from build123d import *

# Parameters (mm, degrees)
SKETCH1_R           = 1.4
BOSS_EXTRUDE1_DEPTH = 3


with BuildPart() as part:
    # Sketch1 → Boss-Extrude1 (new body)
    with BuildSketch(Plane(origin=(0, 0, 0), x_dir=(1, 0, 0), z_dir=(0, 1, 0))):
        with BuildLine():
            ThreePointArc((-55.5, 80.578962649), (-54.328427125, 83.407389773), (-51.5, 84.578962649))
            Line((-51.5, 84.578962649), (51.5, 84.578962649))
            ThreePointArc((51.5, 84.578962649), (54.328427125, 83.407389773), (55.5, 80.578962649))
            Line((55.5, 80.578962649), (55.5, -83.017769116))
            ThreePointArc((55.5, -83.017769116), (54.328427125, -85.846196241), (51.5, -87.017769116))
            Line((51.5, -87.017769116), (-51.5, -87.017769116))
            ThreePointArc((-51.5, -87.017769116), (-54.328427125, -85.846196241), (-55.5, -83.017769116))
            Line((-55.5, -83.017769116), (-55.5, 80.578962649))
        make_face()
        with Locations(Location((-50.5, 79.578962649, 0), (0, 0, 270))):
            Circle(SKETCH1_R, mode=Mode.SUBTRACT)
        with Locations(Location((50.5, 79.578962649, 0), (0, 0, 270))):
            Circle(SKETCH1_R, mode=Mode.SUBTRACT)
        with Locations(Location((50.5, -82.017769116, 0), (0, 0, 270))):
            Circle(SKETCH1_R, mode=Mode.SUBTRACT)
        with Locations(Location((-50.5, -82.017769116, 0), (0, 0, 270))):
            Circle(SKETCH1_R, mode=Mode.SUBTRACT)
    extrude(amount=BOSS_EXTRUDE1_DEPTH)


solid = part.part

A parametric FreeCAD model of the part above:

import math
import FreeCAD as App
import Part
import Sketcher

V = App.Vector
Q = App.Units.Quantity

doc = App.newDocument("Part")
body = doc.addObject("PartDesign::Body", "Body")

sketch1 = body.newObject("Sketcher::SketchObject", "Sketch")
sketch1.AttachmentSupport = (doc.getObject("XZ_Plane"), [""])
sketch1.MapMode = "FlatFace"
sketch1.addGeometry(Part.ArcOfCircle(Part.Circle(V(-51.5, -80.6, 0), V(0, 0, 1), 4), math.radians(-180), math.radians(-90)), False)
sketch1.addGeometry(Part.LineSegment(V(-55.5, -80.6, 0), V(-55.5, 83, 0)), False)
sketch1.addGeometry(Part.ArcOfCircle(Part.Circle(V(-51.5, 83, 0), V(0, 0, 1), 4), math.radians(90), math.radians(180)), False)
sketch1.addGeometry(Part.LineSegment(V(-51.5, 87, 0), V(51.5, 87, 0)), False)
sketch1.addGeometry(Part.ArcOfCircle(Part.Circle(V(51.5, 83, 0), V(0, 0, 1), 4), math.radians(0), math.radians(90)), False)
sketch1.addGeometry(Part.LineSegment(V(55.5, 83, 0), V(55.5, -80.6, 0)), False)
sketch1.addGeometry(Part.ArcOfCircle(Part.Circle(V(51.5, -80.6, 0), V(0, 0, 1), 4), math.radians(-90), math.radians(0)), False)
sketch1.addGeometry(Part.LineSegment(V(51.5, -84.6, 0), V(-51.5, -84.6, 0)), False)
sketch1.addGeometry(Part.Circle(V(50.5, 82, 0), V(0, 0, 1), 1.4), False)
sketch1.addGeometry(Part.Circle(V(-50.5, 82, 0), V(0, 0, 1), 1.4), False)
sketch1.addGeometry(Part.Circle(V(50.5, -79.6, 0), V(0, 0, 1), 1.4), False)
sketch1.addGeometry(Part.Circle(V(-50.5, -79.6, 0), V(0, 0, 1), 1.4), False)
sketch1.addConstraint(Sketcher.Constraint("Tangent", 0, 1, 1, 1))
sketch1.addConstraint(Sketcher.Constraint("Tangent", 1, 2, 2, 2))
sketch1.addConstraint(Sketcher.Constraint("Tangent", 2, 1, 3, 1))
sketch1.addConstraint(Sketcher.Constraint("Tangent", 3, 2, 4, 2))
sketch1.addConstraint(Sketcher.Constraint("Tangent", 4, 1, 5, 1))
sketch1.addConstraint(Sketcher.Constraint("Tangent", 5, 2, 6, 2))
sketch1.addConstraint(Sketcher.Constraint("Tangent", 6, 1, 7, 1))
sketch1.addConstraint(Sketcher.Constraint("Tangent", 7, 2, 0, 2))
sketch1.addConstraint(Sketcher.Constraint("Vertical", 1))
sketch1.addConstraint(Sketcher.Constraint("Horizontal", 3))
sketch1.addConstraint(Sketcher.Constraint("Vertical", 5))
sketch1.addConstraint(Sketcher.Constraint("Horizontal", 7))
sketch1.addConstraint(Sketcher.Constraint("Equal", 0, 2))
sketch1.addConstraint(Sketcher.Constraint("Equal", 2, 4))
sketch1.addConstraint(Sketcher.Constraint("Equal", 4, 6))
sketch1.addConstraint(Sketcher.Constraint("Equal", 8, 9))
sketch1.addConstraint(Sketcher.Constraint("Equal", 9, 10))
sketch1.addConstraint(Sketcher.Constraint("Equal", 10, 11))
sketch1.addConstraint(Sketcher.Constraint("Symmetric", 8, 3, 9, 3, -2))
sketch1.addConstraint(Sketcher.Constraint("Symmetric", 10, 3, 11, 3, -2))
sketch1.addConstraint(Sketcher.Constraint("Vertical", 8, 3, 10, 3))
sketch1.addConstraint(Sketcher.Constraint("Radius", 0, Q("4 mm")))
sketch1.addConstraint(Sketcher.Constraint("Diameter", 8, Q("2.8 mm")))
sketch1.addConstraint(Sketcher.Constraint("DistanceX", 3, 1, 3, 2, Q("103 mm")))
sketch1.addConstraint(Sketcher.Constraint("DistanceX", 8, 3, 4, 3, Q("1 mm")))
sketch1.addConstraint(Sketcher.Constraint("DistanceY", 8, 3, 4, 3, Q("1 mm")))
sketch1.addConstraint(Sketcher.Constraint("DistanceX", 2, 3, 9, 3, Q("1 mm")))
sketch1.addConstraint(Sketcher.Constraint("DistanceY", 6, 3, 10, 3, Q("1 mm")))
sketch1.addConstraint(Sketcher.Constraint("DistanceY", 1, 1, 1, 2, Q("163.596732 mm")))
sketch1.addConstraint(Sketcher.Constraint("DistanceY", -1, 1, 2, 3, Q("83.017769 mm")))
pad1 = body.newObject("PartDesign::Pad", "Pad")
pad1.Profile = sketch1
pad1.Length = 3
pad1.Reversed = True

doc.recompute()
